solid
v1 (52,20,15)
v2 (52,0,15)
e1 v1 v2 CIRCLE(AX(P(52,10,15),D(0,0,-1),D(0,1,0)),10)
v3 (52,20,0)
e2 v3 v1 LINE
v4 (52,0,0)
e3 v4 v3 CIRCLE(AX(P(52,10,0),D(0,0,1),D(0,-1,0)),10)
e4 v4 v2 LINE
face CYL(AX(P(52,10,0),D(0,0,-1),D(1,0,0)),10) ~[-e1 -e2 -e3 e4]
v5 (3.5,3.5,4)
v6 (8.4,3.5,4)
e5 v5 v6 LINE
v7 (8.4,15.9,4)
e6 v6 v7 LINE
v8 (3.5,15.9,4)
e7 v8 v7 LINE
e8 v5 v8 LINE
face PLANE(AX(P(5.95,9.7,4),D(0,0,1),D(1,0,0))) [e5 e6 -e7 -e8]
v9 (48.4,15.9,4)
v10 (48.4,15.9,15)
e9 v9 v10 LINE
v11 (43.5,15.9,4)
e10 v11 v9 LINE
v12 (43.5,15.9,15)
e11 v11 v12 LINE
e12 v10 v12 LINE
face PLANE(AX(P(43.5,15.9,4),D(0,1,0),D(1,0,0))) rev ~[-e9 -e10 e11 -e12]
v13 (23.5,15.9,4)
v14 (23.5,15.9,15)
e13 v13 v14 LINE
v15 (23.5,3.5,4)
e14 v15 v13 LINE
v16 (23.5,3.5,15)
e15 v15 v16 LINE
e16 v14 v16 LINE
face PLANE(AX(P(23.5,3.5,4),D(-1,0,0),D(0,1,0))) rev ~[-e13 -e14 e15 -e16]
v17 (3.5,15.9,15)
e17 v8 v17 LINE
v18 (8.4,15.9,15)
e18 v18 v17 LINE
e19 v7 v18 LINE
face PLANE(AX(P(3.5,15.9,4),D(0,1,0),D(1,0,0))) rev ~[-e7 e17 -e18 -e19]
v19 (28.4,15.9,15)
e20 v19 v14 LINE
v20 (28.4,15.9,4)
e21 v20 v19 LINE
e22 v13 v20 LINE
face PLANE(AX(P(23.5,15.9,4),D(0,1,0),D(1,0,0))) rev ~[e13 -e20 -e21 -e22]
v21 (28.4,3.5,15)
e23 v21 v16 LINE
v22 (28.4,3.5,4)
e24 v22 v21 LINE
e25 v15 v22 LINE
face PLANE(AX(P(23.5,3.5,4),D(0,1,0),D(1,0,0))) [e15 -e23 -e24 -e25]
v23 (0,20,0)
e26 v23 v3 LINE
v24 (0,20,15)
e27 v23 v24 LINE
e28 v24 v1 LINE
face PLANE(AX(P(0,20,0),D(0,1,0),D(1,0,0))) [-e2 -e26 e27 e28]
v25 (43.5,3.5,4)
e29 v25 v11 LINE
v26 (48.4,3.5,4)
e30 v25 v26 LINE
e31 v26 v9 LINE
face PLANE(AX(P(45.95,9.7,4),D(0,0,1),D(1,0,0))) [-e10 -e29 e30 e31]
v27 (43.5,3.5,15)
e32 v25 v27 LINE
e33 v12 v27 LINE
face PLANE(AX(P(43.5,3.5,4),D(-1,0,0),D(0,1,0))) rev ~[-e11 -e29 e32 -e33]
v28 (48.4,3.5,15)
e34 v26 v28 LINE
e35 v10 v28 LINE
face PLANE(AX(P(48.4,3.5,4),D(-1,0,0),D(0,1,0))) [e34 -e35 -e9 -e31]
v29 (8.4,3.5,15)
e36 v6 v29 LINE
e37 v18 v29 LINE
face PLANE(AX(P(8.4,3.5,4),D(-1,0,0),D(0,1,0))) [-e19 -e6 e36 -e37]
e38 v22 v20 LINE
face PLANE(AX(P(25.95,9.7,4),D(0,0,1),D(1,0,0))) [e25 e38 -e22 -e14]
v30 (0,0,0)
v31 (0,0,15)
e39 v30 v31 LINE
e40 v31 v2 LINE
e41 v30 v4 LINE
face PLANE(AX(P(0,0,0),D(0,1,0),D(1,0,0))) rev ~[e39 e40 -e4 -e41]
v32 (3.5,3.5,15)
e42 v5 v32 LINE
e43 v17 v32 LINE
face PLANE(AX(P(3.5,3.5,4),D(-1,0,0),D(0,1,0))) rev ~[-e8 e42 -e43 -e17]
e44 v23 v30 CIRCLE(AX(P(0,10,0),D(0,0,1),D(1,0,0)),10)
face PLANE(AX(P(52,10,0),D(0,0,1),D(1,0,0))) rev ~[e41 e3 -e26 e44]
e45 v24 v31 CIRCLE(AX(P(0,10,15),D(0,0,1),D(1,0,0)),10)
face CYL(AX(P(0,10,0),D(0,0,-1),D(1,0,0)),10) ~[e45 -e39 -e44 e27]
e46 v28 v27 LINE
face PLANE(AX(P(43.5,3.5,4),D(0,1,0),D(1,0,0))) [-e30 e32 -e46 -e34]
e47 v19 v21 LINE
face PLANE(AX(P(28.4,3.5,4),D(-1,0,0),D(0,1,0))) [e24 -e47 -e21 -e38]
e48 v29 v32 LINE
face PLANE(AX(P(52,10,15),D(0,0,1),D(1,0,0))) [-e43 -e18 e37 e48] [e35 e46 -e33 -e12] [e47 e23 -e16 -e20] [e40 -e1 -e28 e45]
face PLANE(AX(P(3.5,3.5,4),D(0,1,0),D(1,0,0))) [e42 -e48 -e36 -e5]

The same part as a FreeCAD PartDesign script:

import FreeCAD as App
import Part
import Sketcher

V = App.Vector


def add_polygon(sketch, points):
    """Adds a closed chain of lines whose ends are joined by coincident constraints."""
    first, n = sketch.GeometryCount, len(points)
    for a, b in zip(points, points[1:] + points[:1]):
        sketch.addGeometry(Part.LineSegment(App.Vector(*a, 0), App.Vector(*b, 0)), False)
    for i in range(n):
        sketch.addConstraint(Sketcher.Constraint("Coincident", first + i, 2, first + (i + 1) % n, 1))

doc = App.newDocument("Part")
body = doc.addObject("PartDesign::Body", "Body")

# Sketch on XY plane
sketch1 = body.newObject("Sketcher::SketchObject", "Sketch")
sketch1.AttachmentSupport = (doc.getObject("XY_Plane"), [""])
sketch1.MapMode = "FlatFace"
sketch1.AttachmentOffset = App.Placement(V(0, 0, 4), App.Rotation())
add_polygon(sketch1, [(43.5, 15.9), (43.5, 3.5), (48.4, 3.5), (48.4, 15.9)])  # lines 0-3
sketch1.addConstraint(Sketcher.Constraint("Vertical", 0))
sketch1.addConstraint(Sketcher.Constraint("Horizontal", 1))
sketch1.addConstraint(Sketcher.Constraint("Vertical", 2))
sketch1.addConstraint(Sketcher.Constraint("Horizontal", 3))
sketch1.addConstraint(Sketcher.Constraint("DistanceX", 1, 1, 1, 2, 4.9))
sketch1.addConstraint(Sketcher.Constraint("DistanceY", 0, 2, 0, 1, 12.4))
sketch1.addConstraint(Sketcher.Constraint("DistanceX", -1, 1, 0, 2, 43.5))
sketch1.addConstraint(Sketcher.Constraint("DistanceY", -1, 1, 0, 2, 3.5))
pad1 = body.newObject("PartDesign::Pad", "Pad")
pad1.Profile = sketch1
pad1.Length = 20
body2 = doc.addObject("PartDesign::Body", "Body001")

# Sketch on XY plane
sketch2 = body2.newObject("Sketcher::SketchObject", "Sketch001")
sketch2.AttachmentSupport = (doc.getObject("XY_Plane001"), [""])
sketch2.MapMode = "FlatFace"
sketch2.AttachmentOffset = App.Placement(V(0, 0, 4), App.Rotation())
add_polygon(sketch2, [(23.5, 15.9), (23.5, 3.5), (28.4, 3.5), (28.4, 15.9)])  # lines 0-3
sketch2.addConstraint(Sketcher.Constraint("Vertical", 0))
sketch2.addConstraint(Sketcher.Constraint("Horizontal", 1))
sketch2.addConstraint(Sketcher.Constraint("Vertical", 2))
sketch2.addConstraint(Sketcher.Constraint("Horizontal", 3))
sketch2.addConstraint(Sketcher.Constraint("DistanceX", 1, 1, 1, 2, 4.9))
sketch2.addConstraint(Sketcher.Constraint("DistanceY", 0, 2, 0, 1, 12.4))
sketch2.addConstraint(Sketcher.Constraint("DistanceX", -1, 1, 0, 2, 23.5))
sketch2.addConstraint(Sketcher.Constraint("DistanceY", -1, 1, 0, 2, 3.5))
pad2 = body2.newObject("PartDesign::Pad", "Pad001")
pad2.Profile = sketch2
pad2.Length = 20
body3 = doc.addObject("PartDesign::Body", "Body002")
body3.AllowCompound = True

# Sketch on XY plane
sketch3 = body3.newObject("Sketcher::SketchObject", "Sketch002")
sketch3.AttachmentSupport = (doc.getObject("XY_Plane002"), [""])
sketch3.MapMode = "FlatFace"
sketch3.AttachmentOffset = App.Placement(V(0, 0, 4), App.Rotation())
add_polygon(sketch3, [(3.5, 15.9), (3.5, 3.5), (8.4, 3.5), (8.4, 15.9)])  # lines 0-3
sketch3.addConstraint(Sketcher.Constraint("Vertical", 0))
sketch3.addConstraint(Sketcher.Constraint("Horizontal", 1))
sketch3.addConstraint(Sketcher.Constraint("Vertical", 2))
sketch3.addConstraint(Sketcher.Constraint("Horizontal", 3))
sketch3.addConstraint(Sketcher.Constraint("DistanceX", 1, 1, 1, 2, 4.9))
sketch3.addConstraint(Sketcher.Constraint("DistanceY", 0, 2, 0, 1, 12.4))
sketch3.addConstraint(Sketcher.Constraint("DistanceX", -1, 1, 0, 2, 3.5))
sketch3.addConstraint(Sketcher.Constraint("DistanceY", -1, 1, 0, 2, 3.5))
pad3 = body3.newObject("PartDesign::Pad", "Pad002")
pad3.Profile = sketch3
pad3.Length = 20
doc.recompute()

boolean = body3.newObject("PartDesign::Boolean", "Boolean")
boolean.Type = "Fuse"
boolean.addObjects([body])
doc.recompute()

boolean2 = body3.newObject("PartDesign::Boolean", "Boolean001")
boolean2.Type = "Fuse"
boolean2.addObjects([body2])
body4 = doc.addObject("PartDesign::Body", "Body003")

# Sketch on XY plane
sketch4 = body4.newObject("Sketcher::SketchObject", "Sketch003")
sketch4.AttachmentSupport = (doc.getObject("XY_Plane003"), [""])
sketch4.MapMode = "FlatFace"
sketch4.addGeometry(Part.Circle(V(0, 10, 0), V(0, 0, 1), 10), False)
sketch4.addConstraint(Sketcher.Constraint("PointOnObject", 0, 3, -2))
sketch4.addConstraint(Sketcher.Constraint("Diameter", 0, 20.0))
sketch4.addConstraint(Sketcher.Constraint("DistanceY", -1, 1, 0, 3, 10.0))
pad4 = body4.newObject("PartDesign::Pad", "Pad003")
pad4.Profile = sketch4
pad4.Length = 15
body5 = doc.addObject("PartDesign::Body", "Body004")

# Sketch on XY plane
sketch5 = body5.newObject("Sketcher::SketchObject", "Sketch004")
sketch5.AttachmentSupport = (doc.getObject("XY_Plane004"), [""])
sketch5.MapMode = "FlatFace"
sketch5.addGeometry(Part.Circle(V(52, 10, 0), V(0, 0, 1), 10), False)
sketch5.addConstraint(Sketcher.Constraint("Diameter", 0, 20.0))
sketch5.addConstraint(Sketcher.Constraint("DistanceX", -1, 1, 0, 3, 52.0))
sketch5.addConstraint(Sketcher.Constraint("DistanceY", -1, 1, 0, 3, 10.0))
pad5 = body5.newObject("PartDesign::Pad", "Pad004")
pad5.Profile = sketch5
pad5.Length = 15
body6 = doc.addObject("PartDesign::Body", "Body005")

# Sketch on XY plane
sketch6 = body6.newObject("Sketcher::SketchObject", "Sketch005")
sketch6.AttachmentSupport = (doc.getObject("XY_Plane005"), [""])
sketch6.MapMode = "FlatFace"
add_polygon(sketch6, [(0, 20), (0, 0), (52, 0), (52, 20)])  # lines 0-3
sketch6.addConstraint(Sketcher.Constraint("Vertical", 0))
sketch6.addConstraint(Sketcher.Constraint("Horizontal", 1))
sketch6.addConstraint(Sketcher.Constraint("Vertical", 2))
sketch6.addConstraint(Sketcher.Constraint("Horizontal", 3))
sketch6.addConstraint(Sketcher.Constraint("Coincident", 0, 2, -1, 1))
sketch6.addConstraint(Sketcher.Constraint("DistanceX", 1, 1, 1, 2, 52.0))
sketch6.addConstraint(Sketcher.Constraint("DistanceY", 0, 2, 0, 1, 20.0))
pad6 = body6.newObject("PartDesign::Pad", "Pad005")
pad6.Profile = sketch6
pad6.Length = 15
doc.recompute()

boolean3 = body6.newObject("PartDesign::Boolean", "Boolean002")
boolean3.Type = "Fuse"
boolean3.addObjects([body4])
doc.recompute()

boolean4 = body6.newObject("PartDesign::Boolean", "Boolean003")
boolean4.Type = "Fuse"
boolean4.addObjects([body5])
doc.recompute()

boolean5 = body6.newObject("PartDesign::Boolean", "Boolean004")
boolean5.Type = "Cut"
boolean5.addObjects([body3])

doc.recompute()
